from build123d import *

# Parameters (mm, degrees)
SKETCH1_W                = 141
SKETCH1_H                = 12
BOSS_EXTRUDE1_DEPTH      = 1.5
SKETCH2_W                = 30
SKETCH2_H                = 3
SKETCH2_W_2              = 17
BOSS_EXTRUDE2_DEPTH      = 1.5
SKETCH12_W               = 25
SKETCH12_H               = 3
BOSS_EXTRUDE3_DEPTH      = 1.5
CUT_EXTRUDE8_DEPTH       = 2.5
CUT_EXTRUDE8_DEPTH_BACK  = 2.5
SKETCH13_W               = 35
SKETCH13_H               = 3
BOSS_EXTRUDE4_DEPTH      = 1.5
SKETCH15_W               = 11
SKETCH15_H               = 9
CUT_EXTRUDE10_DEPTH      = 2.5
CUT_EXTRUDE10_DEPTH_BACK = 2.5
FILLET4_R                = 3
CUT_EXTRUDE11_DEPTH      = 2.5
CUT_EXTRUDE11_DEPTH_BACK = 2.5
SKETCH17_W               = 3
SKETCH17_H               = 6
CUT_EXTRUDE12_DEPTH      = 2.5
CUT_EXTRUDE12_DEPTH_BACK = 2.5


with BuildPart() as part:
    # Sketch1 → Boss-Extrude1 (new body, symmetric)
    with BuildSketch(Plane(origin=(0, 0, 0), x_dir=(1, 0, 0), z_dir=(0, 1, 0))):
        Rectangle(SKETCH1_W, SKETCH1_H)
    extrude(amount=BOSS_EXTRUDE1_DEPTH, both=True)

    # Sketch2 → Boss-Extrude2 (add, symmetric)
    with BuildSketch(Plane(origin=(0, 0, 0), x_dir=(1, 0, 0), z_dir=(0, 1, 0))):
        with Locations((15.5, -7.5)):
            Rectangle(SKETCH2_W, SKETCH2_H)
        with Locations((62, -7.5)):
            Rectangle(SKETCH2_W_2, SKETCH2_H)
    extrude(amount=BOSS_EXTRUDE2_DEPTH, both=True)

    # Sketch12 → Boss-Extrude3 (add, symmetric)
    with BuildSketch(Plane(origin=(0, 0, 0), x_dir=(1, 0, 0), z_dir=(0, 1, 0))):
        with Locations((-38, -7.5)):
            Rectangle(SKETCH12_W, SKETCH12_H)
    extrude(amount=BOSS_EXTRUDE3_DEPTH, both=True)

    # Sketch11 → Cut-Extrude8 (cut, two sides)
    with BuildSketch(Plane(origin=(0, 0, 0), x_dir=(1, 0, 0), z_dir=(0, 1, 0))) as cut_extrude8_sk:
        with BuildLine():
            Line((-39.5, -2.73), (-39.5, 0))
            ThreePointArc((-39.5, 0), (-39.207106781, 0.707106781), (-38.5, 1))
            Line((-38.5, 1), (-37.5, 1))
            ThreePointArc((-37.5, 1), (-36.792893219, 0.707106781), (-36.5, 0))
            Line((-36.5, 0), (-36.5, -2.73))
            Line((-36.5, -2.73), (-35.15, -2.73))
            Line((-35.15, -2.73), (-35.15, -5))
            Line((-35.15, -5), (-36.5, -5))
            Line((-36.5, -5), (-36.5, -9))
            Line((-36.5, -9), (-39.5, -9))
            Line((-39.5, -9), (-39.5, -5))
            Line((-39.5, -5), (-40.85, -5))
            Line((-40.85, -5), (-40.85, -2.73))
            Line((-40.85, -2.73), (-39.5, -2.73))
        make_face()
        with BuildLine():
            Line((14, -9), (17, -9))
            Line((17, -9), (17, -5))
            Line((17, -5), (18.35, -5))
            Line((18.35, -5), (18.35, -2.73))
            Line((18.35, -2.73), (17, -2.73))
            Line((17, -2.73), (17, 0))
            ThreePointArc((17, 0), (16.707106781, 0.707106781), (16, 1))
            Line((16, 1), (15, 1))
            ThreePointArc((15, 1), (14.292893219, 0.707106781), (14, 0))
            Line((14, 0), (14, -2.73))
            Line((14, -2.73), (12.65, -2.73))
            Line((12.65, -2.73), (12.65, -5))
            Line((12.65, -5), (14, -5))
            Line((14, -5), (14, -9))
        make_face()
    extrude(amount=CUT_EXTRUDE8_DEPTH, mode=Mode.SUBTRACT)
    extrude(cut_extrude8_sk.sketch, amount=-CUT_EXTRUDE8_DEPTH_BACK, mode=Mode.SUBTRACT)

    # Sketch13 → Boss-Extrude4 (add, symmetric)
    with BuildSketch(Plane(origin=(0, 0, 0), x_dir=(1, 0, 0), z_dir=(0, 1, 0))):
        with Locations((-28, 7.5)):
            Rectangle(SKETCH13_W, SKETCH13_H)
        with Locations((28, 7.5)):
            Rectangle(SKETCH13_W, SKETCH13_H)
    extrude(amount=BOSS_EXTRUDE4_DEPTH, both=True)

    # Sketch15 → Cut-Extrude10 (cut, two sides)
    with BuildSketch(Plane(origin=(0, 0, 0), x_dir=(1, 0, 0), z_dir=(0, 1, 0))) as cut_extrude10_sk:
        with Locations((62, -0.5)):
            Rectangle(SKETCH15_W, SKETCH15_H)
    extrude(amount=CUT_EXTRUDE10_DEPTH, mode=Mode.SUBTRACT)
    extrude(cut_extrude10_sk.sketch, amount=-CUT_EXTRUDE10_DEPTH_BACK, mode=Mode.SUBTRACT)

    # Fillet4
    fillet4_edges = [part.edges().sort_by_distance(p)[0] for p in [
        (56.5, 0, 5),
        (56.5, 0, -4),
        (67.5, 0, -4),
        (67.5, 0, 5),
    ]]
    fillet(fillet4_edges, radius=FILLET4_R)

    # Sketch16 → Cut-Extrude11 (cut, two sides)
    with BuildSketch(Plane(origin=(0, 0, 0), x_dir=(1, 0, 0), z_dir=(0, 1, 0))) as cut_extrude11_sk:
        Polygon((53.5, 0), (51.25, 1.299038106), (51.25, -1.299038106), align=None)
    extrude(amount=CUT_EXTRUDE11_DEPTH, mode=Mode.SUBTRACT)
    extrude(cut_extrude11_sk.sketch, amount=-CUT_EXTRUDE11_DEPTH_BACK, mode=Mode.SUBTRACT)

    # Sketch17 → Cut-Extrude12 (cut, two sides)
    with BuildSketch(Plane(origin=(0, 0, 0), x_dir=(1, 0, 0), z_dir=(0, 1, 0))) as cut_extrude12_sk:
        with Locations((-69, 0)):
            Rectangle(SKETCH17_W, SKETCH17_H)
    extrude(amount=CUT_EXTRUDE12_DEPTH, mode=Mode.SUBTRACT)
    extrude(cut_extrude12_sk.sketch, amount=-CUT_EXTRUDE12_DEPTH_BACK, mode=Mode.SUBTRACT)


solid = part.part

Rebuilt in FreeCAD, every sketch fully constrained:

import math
import FreeCAD as App
import Part
import Sketcher
from FreeCAD import Vector
Q = App.Units.Quantity


def edges_at(feature, points):
    """Names of the edges that pass closest to the given points."""
    edges = feature.Shape.Edges
    near = lambda p: min(range(len(edges)), key=lambda i: edges[i].distToShape(Part.Vertex(*p))[0])
    return sorted({f"Edge{near(p) + 1}" for p in points})


def add_polygon(sketch, points):
    """Adds a closed chain of lines whose ends are joined by coincident constraints."""
    first, n = sketch.GeometryCount, len(points)
    for a, b in zip(points, points[1:] + points[:1]):
        sketch.addGeometry(Part.LineSegment(App.Vector(*a, 0), App.Vector(*b, 0)), False)
    for i in range(n):
        sketch.addConstraint(Sketcher.Constraint("Coincident", first + i, 2, first + (i + 1) % n, 1))

doc = App.newDocument("Part")
body = doc.addObject("PartDesign::Body", "Body")

# Sketch on XZ plane
sketch1 = doc.addObject("Sketcher::SketchObject", "Sketch")
body.addObject(sketch1)
sketch1.AttachmentSupport = (doc.XZ_Plane, [""])
sketch1.MapMode = "FlatFace"
add_polygon(sketch1, [(-70, -6), (-70, 6), (70, 6), (70, -6)])  # lines 0-3
sketch1.addConstraint([
    Sketcher.Constraint("Vertical", 0),
    Sketcher.Constraint("Horizontal", 1),
    Sketcher.Constraint("Vertical", 2),
    Sketcher.Constraint("Horizontal", 3),
    Sketcher.Constraint("Symmetric", 0, 2, 2, 2, -1, 1),
    Sketcher.Constraint("DistanceX", 1, 1, 1, 2, 141.0),
    Sketcher.Constraint("DistanceY", 0, 1, 0, 2, 12.0),
])
pad1 = doc.addObject("PartDesign::Pad", "Pad")
body.addObject(pad1)
pad1.Profile = sketch1
pad1.Length = 3
pad1.Midplane = True

# Sketch on XZ plane
sketch2 = doc.addObject("Sketcher::SketchObject", "Sketch001")
body.addObject(sketch2)
sketch2.AttachmentSupport = (doc.XZ_Plane, [""])
sketch2.MapMode = "FlatFace"
add_polygon(sketch2, [(0.5, 6), (0.5, 9), (30.5, 9), (30.5, 6)])  # lines 0-3
add_polygon(sketch2, [(53.5, 6), (53.5, 9), (70.5, 9), (70.5, 6)])  # lines 4-7
sketch2.addConstraint([
    Sketcher.Constraint("Vertical", 0),
    Sketcher.Constraint("Horizontal", 1),
    Sketcher.Constraint("Vertical", 2),
    Sketcher.Constraint("Horizontal", 3),
    Sketcher.Constraint("Vertical", 4),
    Sketcher.Constraint("Horizontal", 5),
    Sketcher.Constraint("Vertical", 6),
    Sketcher.Constraint("Horizontal", 7),
    Sketcher.Constraint("Horizontal", 1, 2, 4, 2),
    Sketcher.Constraint("Horizontal", 3, 2, 6, 2),
    Sketcher.Constraint("DistanceX", 1, 1, 1, 2, 30.0),
    Sketcher.Constraint("DistanceX", 5, 1, 5, 2, 17.0),
    Sketcher.Constraint("DistanceY", 0, 1, 0, 2, 3.0),
    Sketcher.Constraint("DistanceY", -1, 1, 0, 2, 9.0),
    Sketcher.Constraint("DistanceX", 1, 2, 4, 2, 23.0),
    Sketcher.Constraint("DistanceX", -1, 1, 0, 2, 0.5),
])
pad2 = doc.addObject("PartDesign::Pad", "Pad001")
body.addObject(pad2)
pad2.Profile = sketch2
pad2.Length = 3
pad2.Midplane = True

# Sketch on XZ plane
sketch3 = doc.addObject("Sketcher::SketchObject", "Sketch002")
body.addObject(sketch3)
sketch3.AttachmentSupport = (doc.XZ_Plane, [""])
sketch3.MapMode = "FlatFace"
add_polygon(sketch3, [(-50.5, 6), (-50.5, 9), (-25.5, 9), (-25.5, 6)])  # lines 0-3
sketch3.addConstraint([
    Sketcher.Constraint("Vertical", 0),
    Sketcher.Constraint("Horizontal", 1),
    Sketcher.Constraint("Vertical", 2),
    Sketcher.Constraint("Horizontal", 3),
    Sketcher.Constraint("DistanceX", 1, 1, 1, 2, 25.0),
    Sketcher.Constraint("DistanceY", 0, 1, 0, 2, 3.0),
    Sketcher.Constraint("DistanceY", -1, 1, 0, 2, 9.0),
    Sketcher.Constraint("DistanceX", 0, 2, -1, 1, 50.5),
])
pad3 = doc.addObject("PartDesign::Pad", "Pad002")
body.addObject(pad3)
pad3.Profile = sketch3
pad3.Length = 3
pad3.Midplane = True

# Sketch on XZ plane
sketch4 = doc.addObject("Sketcher::SketchObject", "Sketch003")
body.addObject(sketch4)
sketch4.AttachmentSupport = (doc.XZ_Plane, [""])
sketch4.MapMode = "FlatFace"
sketch4.addGeometry([
    Part.LineSegment(Vector(-39.5, 0, 0), Vector(-39.5, 2.7, 0)),  # 0
    Part.LineSegment(Vector(-39.5, 2.7, 0), Vector(-40.9, 2.7, 0)),  # 1
    Part.LineSegment(Vector(-40.9, 2.7, 0), Vector(-40.9, 5, 0)),  # 2
    Part.LineSegment(Vector(-40.9, 5, 0), Vector(-39.5, 5, 0)),  # 3
    Part.LineSegment(Vector(-39.5, 5, 0), Vector(-39.5, 9, 0)),  # 4
    Part.LineSegment(Vector(-39.5, 9, 0), Vector(-36.5, 9, 0)),  # 5
    Part.LineSegment(Vector(-36.5, 9, 0), Vector(-36.5, 5, 0)),  # 6
    Part.LineSegment(Vector(-36.5, 5, 0), Vector(-35.1, 5, 0)),  # 7
    Part.LineSegment(Vector(-35.1, 5, 0), Vector(-35.1, 2.7, 0)),  # 8
    Part.LineSegment(Vector(-35.1, 2.7, 0), Vector(-36.5, 2.7, 0)),  # 9
    Part.LineSegment(Vector(-36.5, 2.7, 0), Vector(-36.5, 0, 0)),  # 10
    Part.ArcOfCircle(Part.Circle(Vector(-37.5, 0, 0), Vector(0, 0, 1), 1), math.radians(-90), math.radians(0)),  # 11
    Part.LineSegment(Vector(-37.5, -1, 0), Vector(-38.5, -1, 0)),  # 12
    Part.ArcOfCircle(Part.Circle(Vector(-38.5, 0, 0), Vector(0, 0, 1), 1), math.radians(-180), math.radians(-90)),  # 13
    Part.LineSegment(Vector(14, 9, 0), Vector(17, 9, 0)),  # 14
    Part.LineSegment(Vector(17, 9, 0), Vector(17, 5, 0)),  # 15
    Part.LineSegment(Vector(17, 5, 0), Vector(18.4, 5, 0)),  # 16
    Part.LineSegment(Vector(18.4, 5, 0), Vector(18.4, 2.7, 0)),  # 17
    Part.LineSegment(Vector(18.4, 2.7, 0), Vector(17, 2.7, 0)),  # 18
    Part.LineSegment(Vector(17, 2.7, 0), Vector(17, 0, 0)),  # 19
    Part.ArcOfCircle(Part.Circle(Vector(16, 0, 0), Vector(0, 0, 1), 1), math.radians(-90), math.radians(0)),  # 20
    Part.LineSegment(Vector(16, -1, 0), Vector(15, -1, 0)),  # 21
    Part.ArcOfCircle(Part.Circle(Vector(15, 0, 0), Vector(0, 0, 1), 1), math.radians(-180), math.radians(-90)),  # 22
    Part.LineSegment(Vector(14, 0, 0), Vector(14, 2.7, 0)),  # 23
    Part.LineSegment(Vector(14, 2.7, 0), Vector(12.7, 2.7, 0)),  # 24
    Part.LineSegment(Vector(12.7, 2.7, 0), Vector(12.7, 5, 0)),  # 25
    Part.LineSegment(Vector(12.7, 5, 0), Vector(14, 5, 0)),  # 26
    Part.LineSegment(Vector(14, 5, 0), Vector(14, 9, 0)),  # 27
], False)
sketch4.addConstraint([
    Sketcher.Constraint("Coincident", 0, 2, 1, 1),
    Sketcher.Constraint("Coincident", 1, 2, 2, 1),
    Sketcher.Constraint("Coincident", 2, 2, 3, 1),
    Sketcher.Constraint("Coincident", 3, 2, 4, 1),
    Sketcher.Constraint("Coincident", 4, 2, 5, 1),
    Sketcher.Constraint("Coincident", 5, 2, 6, 1),
    Sketcher.Constraint("Coincident", 6, 2, 7, 1),
    Sketcher.Constraint("Coincident", 7, 2, 8, 1),
    Sketcher.Constraint("Coincident", 8, 2, 9, 1),
    Sketcher.Constraint("Coincident", 9, 2, 10, 1),
    Sketcher.Constraint("Tangent", 10, 2, 11, 2),
    Sketcher.Constraint("Tangent", 11, 1, 12, 1),
    Sketcher.Constraint("Tangent", 12, 2, 13, 2),
    Sketcher.Constraint("Tangent", 13, 1, 0, 1),
    Sketcher.Constraint("Coincident", 14, 2, 15, 1),
    Sketcher.Constraint("Coincident", 15, 2, 16, 1),
    Sketcher.Constraint("Coincident", 16, 2, 17, 1),
    Sketcher.Constraint("Coincident", 17, 2, 18, 1),
    Sketcher.Constraint("Coincident", 18, 2, 19, 1),
    Sketcher.Constraint("Tangent", 19, 2, 20, 2),
    Sketcher.Constraint("Tangent", 20, 1, 21, 1),
    Sketcher.Constraint("Tangent", 21, 2, 22, 2),
    Sketcher.Constraint("Tangent", 22, 1, 23, 1),
    Sketcher.Constraint("Coincident", 23, 2, 24, 1),
    Sketcher.Constraint("Coincident", 24, 2, 25, 1),
    Sketcher.Constraint("Coincident", 25, 2, 26, 1),
    Sketcher.Constraint("Coincident", 26, 2, 27, 1),
    Sketcher.Constraint("Coincident", 27, 2, 14, 1),
    Sketcher.Constraint("Vertical", 0),
    Sketcher.Constraint("Horizontal", 1),
    Sketcher.Constraint("Vertical", 2),
    Sketcher.Constraint("Horizontal", 3),
    Sketcher.Constraint("Vertical", 4),
    Sketcher.Constraint("Horizontal", 5),
    Sketcher.Constraint("Vertical", 6),
    Sketcher.Constraint("Horizontal", 7),
    Sketcher.Constraint("Vertical", 8),
    Sketcher.Constraint("Horizontal", 9),
    Sketcher.Constraint("Vertical", 10),
    Sketcher.Constraint("Horizontal", 12),
    Sketcher.Constraint("Horizontal", 14),
    Sketcher.Constraint("Vertical", 15),
    Sketcher.Constraint("Horizontal", 16),
    Sketcher.Constraint("Vertical", 17),
    Sketcher.Constraint("Horizontal", 18),
    Sketcher.Constraint("Vertical", 19),
    Sketcher.Constraint("Horizontal", 21),
    Sketcher.Constraint("Vertical", 23),
    Sketcher.Constraint("Horizontal", 24),
    Sketcher.Constraint("Vertical", 25),
    Sketcher.Constraint("Horizontal", 26),
    Sketcher.Constraint("Vertical", 27),
    Sketcher.Constraint("Equal", 11, 13),
    Sketcher.Constraint("Equal", 13, 20),
    Sketcher.Constraint("Equal", 20, 22),
    Sketcher.Constraint("PointOnObject", 11, 3, -1),
    Sketcher.Constraint("PointOnObject", 20, 3, -1),
    Sketcher.Constraint("Horizontal", 3, 2, 6, 2),
    Sketcher.Constraint("Horizontal", 1, 2, 8, 2),
    Sketcher.Constraint("Horizontal", 5, 2, 14, 2),
    Sketcher.Constraint("Horizontal", 7, 2, 15, 2),
    Sketcher.Constraint("Horizontal", 9, 2, 17, 2),
    Sketcher.Constraint("Horizontal", 18, 2, 23, 2),
    Sketcher.Constraint("Horizontal", 16, 2, 25, 2),
    Sketcher.Constraint("Vertical", 0, 2, 3, 2),
    Sketcher.Constraint("Vertical", 6, 2, 9, 2),
    Sketcher.Constraint("Vertical", 15, 2, 18, 2),
    Sketcher.Constraint("Vertical", 23, 2, 26, 2),
    Sketcher.Constraint("Equal", 3, 7),
    Sketcher.Constraint("Equal", 5, 14),
    Sketcher.Constraint("Equal", 9, 16),
    Sketcher.Constraint("Equal", 18, 24),
    Sketcher.Constraint("Radius", 11, 1.0),
    Sketcher.Constraint("DistanceX", 5, 1, 5, 2, 3.0),
    Sketcher.Constraint("DistanceY", 4, 1, 4, 2, 4.0),
    Sketcher.Constraint("DistanceX", -1, 1, 20, 3, 16.0),
    Sketcher.Constraint("DistanceY", -1, 1, 2, 2, 5.0),
    Sketcher.Constraint("DistanceX", 1, 2, 1, 1, 1.35),
    Sketcher.Constraint("DistanceY", 0, 1, 0, 2, 2.73),
    Sketcher.Constraint("DistanceX", 11, 3, -1, 1, 37.5),
])
pocket1 = doc.addObject("PartDesign::Pocket", "Pocket")
body.addObject(pocket1)
pocket1.Profile = sketch4
pocket1.Type = "ThroughAll"
pocket1.Midplane = True

# Sketch on XZ plane
sketch5 = doc.addObject("Sketcher::SketchObject", "Sketch004")
body.addObject(sketch5)
sketch5.AttachmentSupport = (doc.XZ_Plane, [""])
sketch5.MapMode = "FlatFace"
add_polygon(sketch5, [(-45.5, -9), (-45.5, -6), (-10.5, -6), (-10.5, -9)])  # lines 0-3
add_polygon(sketch5, [(10.5, -9), (10.5, -6), (45.5, -6), (45.5, -9)])  # lines 4-7
sketch5.addConstraint([
    Sketcher.Constraint("Vertical", 0),
    Sketcher.Constraint("Horizontal", 1),
    Sketcher.Constraint("Vertical", 2),
    Sketcher.Constraint("Horizontal", 3),
    Sketcher.Constraint("Vertical", 4),
    Sketcher.Constraint("Horizontal", 5),
    Sketcher.Constraint("Vertical", 6),
    Sketcher.Constraint("Horizontal", 7),
    Sketcher.Constraint("Symmetric", 1, 2, 4, 2, -2),
    Sketcher.Constraint("Symmetric", 3, 2, 6, 2, -2),
    Sketcher.Constraint("DistanceX", 1, 1, 1, 2, 35.0),
    Sketcher.Constraint("DistanceY", 0, 1, 0, 2, 3.0),
    Sketcher.Constraint("DistanceY", 0, 2, -1, 1, 6.0),
    Sketcher.Constraint("DistanceX", 1, 2, 4, 2, 21.0),
])
pad4 = doc.addObject("PartDesign::Pad", "Pad003")
body.addObject(pad4)
pad4.Profile = sketch5
pad4.Length = 3
pad4.Midplane = True

# Sketch on XZ plane
sketch6 = doc.addObject("Sketcher::SketchObject", "Sketch005")
body.addObject(sketch6)
sketch6.AttachmentSupport = (doc.XZ_Plane, [""])
sketch6.MapMode = "FlatFace"
add_polygon(sketch6, [(56, -4), (56, 5), (68, 5), (68, -4)])  # lines 0-3
sketch6.addConstraint([
    Sketcher.Constraint("Vertical", 0),
    Sketcher.Constraint("Horizontal", 1),
    Sketcher.Constraint("Vertical", 2),
    Sketcher.Constraint("Horizontal", 3),
    Sketcher.Constraint("DistanceX", 1, 1, 1, 2, 11.0),
    Sketcher.Constraint("DistanceY", 0, 1, 0, 2, 9.0),
    Sketcher.Constraint("DistanceY", -1, 1, 0, 2, 5.0),
    Sketcher.Constraint("DistanceX", -1, 1, 0, 2, 56.5),
])
pocket2 = doc.addObject("PartDesign::Pocket", "Pocket001")
body.addObject(pocket2)
pocket2.Profile = sketch6
pocket2.Type = "ThroughAll"
pocket2.Midplane = True
doc.recompute()

fillet = doc.addObject("PartDesign::Fillet", "Fillet")
body.addObject(fillet)
fillet.Base = (pocket2, edges_at(pocket2, [
    (56.5, 0, 5),
    (56.5, 0, -4),
    (67.5, 0, -4),
    (67.5, 0, 5),
]))
fillet.Radius = 3

# Sketch on XZ plane
sketch7 = doc.addObject("Sketcher::SketchObject", "Sketch006")
body.addObject(sketch7)
sketch7.AttachmentSupport = (doc.XZ_Plane, [""])
sketch7.MapMode = "FlatFace"
add_polygon(sketch7, [(53.5, 0), (51.2, -1.3), (51.2, 1.3)])  # lines 0-2
sketch7.addConstraint([
    Sketcher.Constraint("Vertical", 1),
    Sketcher.Constraint("PointOnObject", 2, 2, -1),
    Sketcher.Constraint("Equal", 0, 2),
    Sketcher.Constraint("Angle", 0, Q("-150 deg")),
    Sketcher.Constraint("DistanceX", -1, 1, 2, 2, 53.5),
    Sketcher.Constraint("DistanceX", -1, 1, 0, 2, 51.25),
])
pocket3 = doc.addObject("PartDesign::Pocket", "Pocket002")
body.addObject(pocket3)
pocket3.Profile = sketch7
pocket3.Type = "ThroughAll"
pocket3.Midplane = True

# Sketch on XZ plane
sketch8 = doc.addObject("Sketcher::SketchObject", "Sketch007")
body.addObject(sketch8)
sketch8.AttachmentSupport = (doc.XZ_Plane, [""])
sketch8.MapMode = "FlatFace"
add_polygon(sketch8, [(-70.5, -3), (-70.5, 3), (-67.5, 3), (-67.5, -3)])  # lines 0-3
sketch8.addConstraint([
    Sketcher.Constraint("Vertical", 0),
    Sketcher.Constraint("Horizontal", 1),
    Sketcher.Constraint("Vertical", 2),
    Sketcher.Constraint("Horizontal", 3),
    Sketcher.Constraint("DistanceX", 1, 1, 1, 2, 3.0),
    Sketcher.Constraint("DistanceY", 0, 1, 0, 2, 6.0),
    Sketcher.Constraint("DistanceY", -1, 1, 0, 2, 3.0),
    Sketcher.Constraint("DistanceX", 0, 2, -1, 1, 70.5),
])
pocket4 = doc.addObject("PartDesign::Pocket", "Pocket003")
body.addObject(pocket4)
pocket4.Profile = sketch8
pocket4.Type = "ThroughAll"
pocket4.Midplane = True

doc.recompute()
